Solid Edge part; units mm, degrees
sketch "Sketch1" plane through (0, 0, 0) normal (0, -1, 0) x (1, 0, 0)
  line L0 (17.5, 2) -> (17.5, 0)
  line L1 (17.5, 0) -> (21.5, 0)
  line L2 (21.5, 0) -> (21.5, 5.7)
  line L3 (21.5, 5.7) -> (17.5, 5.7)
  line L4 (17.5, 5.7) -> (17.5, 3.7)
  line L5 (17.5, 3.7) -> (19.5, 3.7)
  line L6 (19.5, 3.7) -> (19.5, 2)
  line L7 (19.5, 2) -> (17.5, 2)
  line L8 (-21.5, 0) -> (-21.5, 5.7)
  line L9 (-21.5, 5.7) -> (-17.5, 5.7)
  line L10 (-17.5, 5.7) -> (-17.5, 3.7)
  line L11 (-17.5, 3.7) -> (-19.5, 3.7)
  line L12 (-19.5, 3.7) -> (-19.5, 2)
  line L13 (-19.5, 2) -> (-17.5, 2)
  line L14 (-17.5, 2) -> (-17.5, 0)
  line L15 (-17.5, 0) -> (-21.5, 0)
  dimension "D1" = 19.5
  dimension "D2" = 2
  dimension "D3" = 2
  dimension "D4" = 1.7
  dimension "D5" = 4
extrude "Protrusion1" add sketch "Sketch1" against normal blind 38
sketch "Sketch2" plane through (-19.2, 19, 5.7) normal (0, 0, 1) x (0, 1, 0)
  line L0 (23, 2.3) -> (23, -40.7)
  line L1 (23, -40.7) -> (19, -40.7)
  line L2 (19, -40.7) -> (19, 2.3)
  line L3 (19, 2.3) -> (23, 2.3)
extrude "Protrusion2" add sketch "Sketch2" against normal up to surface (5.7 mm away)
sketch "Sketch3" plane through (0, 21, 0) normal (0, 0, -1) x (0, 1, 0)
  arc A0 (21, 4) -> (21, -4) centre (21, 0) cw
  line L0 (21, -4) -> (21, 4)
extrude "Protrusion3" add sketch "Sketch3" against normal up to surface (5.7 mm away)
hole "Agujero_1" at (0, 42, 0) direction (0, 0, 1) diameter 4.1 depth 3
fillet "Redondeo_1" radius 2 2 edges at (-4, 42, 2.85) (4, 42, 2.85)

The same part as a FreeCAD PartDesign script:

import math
import FreeCAD as App
import Part
import Sketcher
from FreeCAD import Vector
Q = App.Units.Quantity


def edges_at(feature, points):
    """Names of the edges that pass closest to the given points."""
    edges = feature.Shape.Edges
    near = lambda p: min(range(len(edges)), key=lambda i: edges[i].distToShape(Part.Vertex(*p))[0])
    return sorted({f"Edge{near(p) + 1}" for p in points})


def add_polygon(sketch, points):
    """Adds a closed chain of lines whose ends are joined by coincident constraints."""
    first, n = sketch.GeometryCount, len(points)
    for a, b in zip(points, points[1:] + points[:1]):
        sketch.addGeometry(Part.LineSegment(App.Vector(*a, 0), App.Vector(*b, 0)), False)
    for i in range(n):
        sketch.addConstraint(Sketcher.Constraint("Coincident", first + i, 2, first + (i + 1) % n, 1))

doc = App.newDocument("Part")
body = doc.addObject("PartDesign::Body", "Body")
body.AllowCompound = True

sketch1 = doc.addObject("Sketcher::SketchObject", "Sketch")
body.addObject(sketch1)
sketch1.AttachmentSupport = (doc.XZ_Plane, [""])
sketch1.MapMode = "FlatFace"
add_polygon(sketch1, [(19.5, 2), (17.5, 2), (17.5, 0), (21.5, 0), (21.5, 5.7), (17.5, 5.7), (17.5, 3.7), (19.5, 3.7)])
add_polygon(sketch1, [(-21.5, 5.7), (-21.5, 0), (-17.5, 0), (-17.5, 2), (-19.5, 2), (-19.5, 3.7), (-17.5, 3.7), (-17.5, 5.7)])
sketch1.addConstraint([
    Sketcher.Constraint("Horizontal", 0),
    Sketcher.Constraint("Vertical", 1),
    Sketcher.Constraint("Horizontal", 2),
    Sketcher.Constraint("Vertical", 3),
    Sketcher.Constraint("Horizontal", 4),
    Sketcher.Constraint("Vertical", 5),
    Sketcher.Constraint("Horizontal", 6),
    Sketcher.Constraint("Vertical", 7),
    Sketcher.Constraint("Vertical", 8),
    Sketcher.Constraint("Horizontal", 9),
    Sketcher.Constraint("Vertical", 10),
    Sketcher.Constraint("Horizontal", 11),
    Sketcher.Constraint("Vertical", 12),
    Sketcher.Constraint("Horizontal", 13),
    Sketcher.Constraint("Vertical", 14),
    Sketcher.Constraint("Horizontal", 15),
    Sketcher.Constraint("Symmetric", 2, 2, 8, 2, -1, 1),
    Sketcher.Constraint("Symmetric", 1, 2, 9, 2, -2),
    Sketcher.Constraint("Symmetric", 7, 2, 11, 2, -2),
    Sketcher.Constraint("Symmetric", 5, 2, 13, 2, -2),
    Sketcher.Constraint("Horizontal", 4, 2, 14, 2),
    Sketcher.Constraint("Vertical", 1, 2, 4, 2),
    Sketcher.Constraint("Equal", 13, 1),
    Sketcher.Constraint("Equal", 1, 5),
    Sketcher.Constraint("DistanceX", 0, 2, 0, 1, Q("2 mm")),
    Sketcher.Constraint("DistanceX", 2, 1, 2, 2, Q("4 mm")),
    Sketcher.Constraint("DistanceY", 3, 1, 3, 2, Q("5.7 mm")),
    Sketcher.Constraint("DistanceX", 8, 2, 1, 2, Q("39 mm")),
])
pad1 = doc.addObject("PartDesign::Pad", "Pad")
body.addObject(pad1)
pad1.Profile = sketch1
pad1.Length = 38
pad1.Reversed = True

sketch2 = doc.addObject("Sketcher::SketchObject", "Sketch001")
body.addObject(sketch2)
sketch2.AttachmentSupport = (doc.XY_Plane, [""])
sketch2.MapMode = "FlatFace"
sketch2.AttachmentOffset = App.Placement(Vector(0, 0, 5.7), App.Rotation())
add_polygon(sketch2, [(21.5, 42), (-21.5, 42), (-21.5, 38), (21.5, 38)])
sketch2.addConstraint([
    Sketcher.Constraint("Horizontal", 0),
    Sketcher.Constraint("Vertical", 1),
    Sketcher.Constraint("Horizontal", 2),
    Sketcher.Constraint("Vertical", 3),
    Sketcher.Constraint("DistanceX", 0, 2, 0, 1, Q("43 mm")),
    Sketcher.Constraint("DistanceY", 1, 2, 1, 1, Q("4 mm")),
    Sketcher.Constraint("DistanceY", -1, 1, 0, 2, Q("42 mm")),
    Sketcher.Constraint("DistanceX", 0, 2, -1, 1, Q("21.5 mm")),
])
pad2 = doc.addObject("PartDesign::Pad", "Pad001")
body.addObject(pad2)
pad2.Profile = sketch2
pad2.Length = 5.7
pad2.Reversed = True

sketch3 = doc.addObject("Sketcher::SketchObject", "Sketch002")
body.addObject(sketch3)
sketch3.AttachmentSupport = (doc.XY_Plane, [""])
sketch3.MapMode = "FlatFace"
sketch3.addGeometry([
    Part.ArcOfCircle(Part.Circle(Vector(0, 42, 0), Vector(0, 0, 1), 4), math.radians(0), math.radians(180)),
    Part.LineSegment(Vector(4, 42, 0), Vector(-4, 42, 0)),
], False)
sketch3.addConstraint([
    Sketcher.Constraint("Coincident", 0, 1, 1, 1),
    Sketcher.Constraint("Coincident", 1, 2, 0, 2),
    Sketcher.Constraint("Horizontal", 1),
    Sketcher.Constraint("PointOnObject", 0, 3, -2),
    Sketcher.Constraint("Radius", 0, Q("4 mm")),
    Sketcher.Constraint("DistanceY", -1, 1, 0, 3, Q("42 mm")),
    Sketcher.Constraint("DistanceY", -1, 1, 0, 1, Q("42 mm")),
])
pad3 = doc.addObject("PartDesign::Pad", "Pad002")
body.addObject(pad3)
pad3.Profile = sketch3
pad3.Length = 5.7

sketch4 = doc.addObject("Sketcher::SketchObject", "Sketch003")
body.addObject(sketch4)
sketch4.AttachmentSupport = (doc.XY_Plane, [""])
sketch4.MapMode = "FlatFace"
sketch4.addGeometry(Part.Circle(Vector(0, 42, 0), Vector(0, 0, 1), 2), False)
sketch4.addConstraint([
    Sketcher.Constraint("PointOnObject", 0, 3, -2),
    Sketcher.Constraint("Diameter", 0, Q("4.1 mm")),
    Sketcher.Constraint("DistanceY", -1, 1, 0, 3, Q("42 mm")),
])
doc.recompute()
hole = doc.addObject("PartDesign::Hole", "Hole")
body.addObject(hole)
hole.Profile = sketch4
hole.ThreadType = "None"
hole.Diameter = 4.1
hole.DepthType = "Dimension"
hole.Depth = 3
hole.DrillPoint = "Flat"
hole.Reversed = True
doc.recompute()

fillet = doc.addObject("PartDesign::Fillet", "Fillet")
body.addObject(fillet)
fillet.Base = (hole, edges_at(hole, [(-4, 42, 2.85), (4, 42, 2.85)]))
fillet.Radius = 2

doc.recompute()
